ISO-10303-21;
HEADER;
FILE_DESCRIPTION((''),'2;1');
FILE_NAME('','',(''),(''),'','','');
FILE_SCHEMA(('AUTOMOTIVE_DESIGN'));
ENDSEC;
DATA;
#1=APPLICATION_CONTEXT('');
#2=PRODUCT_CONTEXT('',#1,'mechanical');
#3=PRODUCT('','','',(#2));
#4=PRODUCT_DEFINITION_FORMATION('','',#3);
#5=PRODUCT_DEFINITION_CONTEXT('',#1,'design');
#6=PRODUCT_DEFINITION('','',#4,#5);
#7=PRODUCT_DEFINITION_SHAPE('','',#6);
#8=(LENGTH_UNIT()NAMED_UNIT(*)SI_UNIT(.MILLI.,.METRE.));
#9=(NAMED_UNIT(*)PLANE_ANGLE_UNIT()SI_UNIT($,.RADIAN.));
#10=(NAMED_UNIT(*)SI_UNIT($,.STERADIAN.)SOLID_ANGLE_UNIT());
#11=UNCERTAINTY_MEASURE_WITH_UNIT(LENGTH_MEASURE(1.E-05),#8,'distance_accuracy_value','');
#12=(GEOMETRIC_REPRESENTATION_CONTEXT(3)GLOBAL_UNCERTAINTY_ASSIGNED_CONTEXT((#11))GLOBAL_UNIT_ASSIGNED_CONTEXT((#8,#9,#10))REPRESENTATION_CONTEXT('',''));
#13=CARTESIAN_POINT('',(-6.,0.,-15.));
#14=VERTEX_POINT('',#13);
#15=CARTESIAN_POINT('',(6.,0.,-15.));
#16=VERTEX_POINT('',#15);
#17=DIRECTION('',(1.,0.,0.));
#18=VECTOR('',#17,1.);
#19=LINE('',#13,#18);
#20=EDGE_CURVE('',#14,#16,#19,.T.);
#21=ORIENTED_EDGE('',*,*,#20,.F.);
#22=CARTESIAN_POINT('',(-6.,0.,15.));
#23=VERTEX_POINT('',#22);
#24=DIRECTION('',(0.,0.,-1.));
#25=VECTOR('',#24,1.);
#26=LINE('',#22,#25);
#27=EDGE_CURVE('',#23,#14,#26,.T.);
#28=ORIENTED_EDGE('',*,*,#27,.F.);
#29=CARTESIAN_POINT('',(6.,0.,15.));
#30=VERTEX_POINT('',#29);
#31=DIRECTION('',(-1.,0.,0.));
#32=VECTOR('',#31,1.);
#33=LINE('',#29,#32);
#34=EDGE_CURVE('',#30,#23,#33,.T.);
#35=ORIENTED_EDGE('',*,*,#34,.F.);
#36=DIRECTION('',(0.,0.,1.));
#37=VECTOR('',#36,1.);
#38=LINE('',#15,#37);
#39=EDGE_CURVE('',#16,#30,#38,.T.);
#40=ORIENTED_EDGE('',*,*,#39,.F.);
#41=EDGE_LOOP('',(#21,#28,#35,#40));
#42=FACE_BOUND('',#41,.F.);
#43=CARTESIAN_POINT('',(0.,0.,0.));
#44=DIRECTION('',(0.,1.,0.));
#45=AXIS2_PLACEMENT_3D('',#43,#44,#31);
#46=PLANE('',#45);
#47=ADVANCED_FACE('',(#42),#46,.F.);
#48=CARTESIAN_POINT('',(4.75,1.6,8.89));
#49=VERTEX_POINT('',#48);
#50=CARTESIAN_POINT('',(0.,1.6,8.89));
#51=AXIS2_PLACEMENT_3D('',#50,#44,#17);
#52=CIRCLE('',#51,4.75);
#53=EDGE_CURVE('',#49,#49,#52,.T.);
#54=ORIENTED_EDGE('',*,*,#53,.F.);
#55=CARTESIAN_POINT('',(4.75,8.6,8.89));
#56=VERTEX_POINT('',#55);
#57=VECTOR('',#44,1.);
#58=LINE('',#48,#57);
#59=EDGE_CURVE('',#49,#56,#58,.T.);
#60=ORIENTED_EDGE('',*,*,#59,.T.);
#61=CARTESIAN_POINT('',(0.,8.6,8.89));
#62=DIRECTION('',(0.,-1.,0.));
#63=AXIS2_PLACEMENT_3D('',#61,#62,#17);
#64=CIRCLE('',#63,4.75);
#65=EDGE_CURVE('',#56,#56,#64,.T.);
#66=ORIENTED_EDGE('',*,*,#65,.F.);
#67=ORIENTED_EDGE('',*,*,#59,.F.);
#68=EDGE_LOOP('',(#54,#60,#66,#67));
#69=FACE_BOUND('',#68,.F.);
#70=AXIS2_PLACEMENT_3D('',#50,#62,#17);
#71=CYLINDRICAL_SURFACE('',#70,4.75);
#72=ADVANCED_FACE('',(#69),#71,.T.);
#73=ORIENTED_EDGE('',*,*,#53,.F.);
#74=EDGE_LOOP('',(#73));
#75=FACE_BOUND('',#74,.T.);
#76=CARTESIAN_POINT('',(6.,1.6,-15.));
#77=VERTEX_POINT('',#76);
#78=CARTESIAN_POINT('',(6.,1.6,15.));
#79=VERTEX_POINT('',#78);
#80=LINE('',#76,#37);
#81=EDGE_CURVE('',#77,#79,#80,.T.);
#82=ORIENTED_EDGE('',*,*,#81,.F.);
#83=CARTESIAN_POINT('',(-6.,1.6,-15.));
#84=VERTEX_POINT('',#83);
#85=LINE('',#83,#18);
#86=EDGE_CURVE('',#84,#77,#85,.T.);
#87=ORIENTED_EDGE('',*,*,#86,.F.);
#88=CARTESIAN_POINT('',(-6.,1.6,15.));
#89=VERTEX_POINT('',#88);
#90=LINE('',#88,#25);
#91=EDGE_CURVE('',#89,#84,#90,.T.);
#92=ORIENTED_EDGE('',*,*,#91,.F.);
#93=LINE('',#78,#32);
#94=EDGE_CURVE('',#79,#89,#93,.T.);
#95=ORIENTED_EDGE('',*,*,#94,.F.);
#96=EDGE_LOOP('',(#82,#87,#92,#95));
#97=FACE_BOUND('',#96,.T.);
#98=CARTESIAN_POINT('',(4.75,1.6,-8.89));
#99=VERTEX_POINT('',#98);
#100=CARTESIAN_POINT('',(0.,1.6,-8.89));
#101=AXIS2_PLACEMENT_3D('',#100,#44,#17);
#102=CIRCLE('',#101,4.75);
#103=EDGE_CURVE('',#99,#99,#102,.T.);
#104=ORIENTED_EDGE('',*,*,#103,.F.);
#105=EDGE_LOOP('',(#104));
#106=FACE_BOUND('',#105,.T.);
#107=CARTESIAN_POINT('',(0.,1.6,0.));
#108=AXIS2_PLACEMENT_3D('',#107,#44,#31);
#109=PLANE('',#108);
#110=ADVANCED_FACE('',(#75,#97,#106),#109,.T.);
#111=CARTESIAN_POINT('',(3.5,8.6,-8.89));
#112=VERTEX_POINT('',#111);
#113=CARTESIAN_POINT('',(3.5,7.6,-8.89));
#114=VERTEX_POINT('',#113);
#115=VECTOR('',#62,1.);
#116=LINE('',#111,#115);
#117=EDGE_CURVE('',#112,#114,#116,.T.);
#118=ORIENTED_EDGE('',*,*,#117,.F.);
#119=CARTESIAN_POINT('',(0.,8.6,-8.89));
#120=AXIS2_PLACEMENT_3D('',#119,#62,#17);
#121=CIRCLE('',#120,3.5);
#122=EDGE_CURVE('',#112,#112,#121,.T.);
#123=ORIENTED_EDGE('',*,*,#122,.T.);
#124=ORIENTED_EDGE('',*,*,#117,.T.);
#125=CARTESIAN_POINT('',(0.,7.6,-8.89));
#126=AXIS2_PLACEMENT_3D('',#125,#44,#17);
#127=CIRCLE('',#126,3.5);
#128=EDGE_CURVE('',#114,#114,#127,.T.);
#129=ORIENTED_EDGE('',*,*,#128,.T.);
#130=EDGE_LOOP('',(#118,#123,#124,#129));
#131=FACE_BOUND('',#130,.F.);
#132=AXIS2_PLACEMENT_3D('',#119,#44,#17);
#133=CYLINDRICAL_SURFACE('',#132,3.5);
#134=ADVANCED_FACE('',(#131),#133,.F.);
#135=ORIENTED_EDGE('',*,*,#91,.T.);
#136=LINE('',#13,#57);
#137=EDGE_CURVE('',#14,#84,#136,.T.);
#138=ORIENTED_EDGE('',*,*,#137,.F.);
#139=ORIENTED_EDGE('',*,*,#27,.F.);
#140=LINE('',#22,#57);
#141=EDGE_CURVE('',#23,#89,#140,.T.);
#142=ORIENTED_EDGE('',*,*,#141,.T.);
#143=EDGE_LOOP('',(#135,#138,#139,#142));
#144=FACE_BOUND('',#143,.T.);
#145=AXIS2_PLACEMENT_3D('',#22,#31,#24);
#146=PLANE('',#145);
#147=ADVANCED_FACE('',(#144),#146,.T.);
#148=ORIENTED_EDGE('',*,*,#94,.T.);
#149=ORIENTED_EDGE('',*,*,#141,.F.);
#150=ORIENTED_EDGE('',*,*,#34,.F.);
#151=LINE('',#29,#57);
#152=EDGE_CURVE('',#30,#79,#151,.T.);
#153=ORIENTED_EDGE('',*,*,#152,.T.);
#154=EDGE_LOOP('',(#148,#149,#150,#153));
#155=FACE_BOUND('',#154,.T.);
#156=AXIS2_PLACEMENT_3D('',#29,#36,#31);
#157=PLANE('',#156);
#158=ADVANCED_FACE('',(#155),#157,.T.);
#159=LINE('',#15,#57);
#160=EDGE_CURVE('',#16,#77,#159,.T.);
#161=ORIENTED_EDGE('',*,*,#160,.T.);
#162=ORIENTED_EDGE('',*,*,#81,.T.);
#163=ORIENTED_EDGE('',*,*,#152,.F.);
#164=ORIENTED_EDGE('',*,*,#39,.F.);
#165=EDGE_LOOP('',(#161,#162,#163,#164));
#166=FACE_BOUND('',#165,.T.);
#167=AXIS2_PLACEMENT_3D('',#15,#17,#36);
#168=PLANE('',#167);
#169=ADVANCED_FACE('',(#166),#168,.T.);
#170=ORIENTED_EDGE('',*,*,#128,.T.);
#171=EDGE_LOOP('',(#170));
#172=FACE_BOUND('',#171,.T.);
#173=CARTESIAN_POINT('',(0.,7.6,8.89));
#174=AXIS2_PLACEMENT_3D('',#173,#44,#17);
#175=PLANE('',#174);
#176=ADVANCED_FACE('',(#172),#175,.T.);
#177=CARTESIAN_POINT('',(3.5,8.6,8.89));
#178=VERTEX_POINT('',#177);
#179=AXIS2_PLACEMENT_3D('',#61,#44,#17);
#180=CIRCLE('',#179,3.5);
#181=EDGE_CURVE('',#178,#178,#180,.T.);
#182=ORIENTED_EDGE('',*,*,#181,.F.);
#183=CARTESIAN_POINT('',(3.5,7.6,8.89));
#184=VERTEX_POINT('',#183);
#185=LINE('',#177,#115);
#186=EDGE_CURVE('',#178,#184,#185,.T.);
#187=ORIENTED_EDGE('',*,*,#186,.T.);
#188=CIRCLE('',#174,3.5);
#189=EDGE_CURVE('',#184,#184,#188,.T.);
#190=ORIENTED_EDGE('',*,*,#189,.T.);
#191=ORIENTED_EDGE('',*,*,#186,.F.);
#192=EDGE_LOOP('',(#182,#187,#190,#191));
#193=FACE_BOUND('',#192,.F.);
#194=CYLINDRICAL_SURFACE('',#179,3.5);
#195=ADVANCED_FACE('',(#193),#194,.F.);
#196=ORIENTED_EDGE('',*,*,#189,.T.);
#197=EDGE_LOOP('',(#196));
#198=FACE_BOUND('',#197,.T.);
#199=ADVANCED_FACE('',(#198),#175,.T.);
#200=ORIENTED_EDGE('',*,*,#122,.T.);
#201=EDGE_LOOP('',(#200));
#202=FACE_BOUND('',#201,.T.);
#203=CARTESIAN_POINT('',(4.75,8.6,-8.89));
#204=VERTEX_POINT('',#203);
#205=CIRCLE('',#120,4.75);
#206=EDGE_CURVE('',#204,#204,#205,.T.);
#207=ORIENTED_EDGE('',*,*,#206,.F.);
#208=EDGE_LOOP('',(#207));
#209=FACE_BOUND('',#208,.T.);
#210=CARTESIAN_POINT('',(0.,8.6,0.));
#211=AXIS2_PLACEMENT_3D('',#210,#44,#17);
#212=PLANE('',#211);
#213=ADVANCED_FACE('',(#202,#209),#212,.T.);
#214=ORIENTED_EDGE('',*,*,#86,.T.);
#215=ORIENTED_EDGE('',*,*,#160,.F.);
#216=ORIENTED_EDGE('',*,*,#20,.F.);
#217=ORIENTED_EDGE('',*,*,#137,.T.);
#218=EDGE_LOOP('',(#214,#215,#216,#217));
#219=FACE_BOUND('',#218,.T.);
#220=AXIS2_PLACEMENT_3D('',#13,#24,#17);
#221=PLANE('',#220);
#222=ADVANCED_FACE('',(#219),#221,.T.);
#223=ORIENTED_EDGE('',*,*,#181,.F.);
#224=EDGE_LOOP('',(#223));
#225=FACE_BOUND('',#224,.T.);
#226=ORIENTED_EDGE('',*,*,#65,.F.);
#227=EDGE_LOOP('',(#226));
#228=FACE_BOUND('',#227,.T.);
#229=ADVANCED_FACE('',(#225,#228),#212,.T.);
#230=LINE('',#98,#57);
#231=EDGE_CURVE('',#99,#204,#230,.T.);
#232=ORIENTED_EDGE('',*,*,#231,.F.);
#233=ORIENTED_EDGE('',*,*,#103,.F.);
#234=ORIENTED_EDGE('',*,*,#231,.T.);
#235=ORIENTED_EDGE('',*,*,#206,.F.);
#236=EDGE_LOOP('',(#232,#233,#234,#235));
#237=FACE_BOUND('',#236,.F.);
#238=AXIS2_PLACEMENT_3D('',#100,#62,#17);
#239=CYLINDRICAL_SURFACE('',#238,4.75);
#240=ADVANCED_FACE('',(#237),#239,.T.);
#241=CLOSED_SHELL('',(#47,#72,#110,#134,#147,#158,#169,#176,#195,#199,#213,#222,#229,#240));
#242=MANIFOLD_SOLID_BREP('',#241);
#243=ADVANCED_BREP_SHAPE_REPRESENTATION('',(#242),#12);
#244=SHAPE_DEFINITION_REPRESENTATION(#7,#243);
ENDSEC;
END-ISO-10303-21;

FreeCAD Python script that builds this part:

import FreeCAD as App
import Part
import Sketcher

V = App.Vector


def add_polygon(sketch, points):
    """Adds a closed chain of lines whose ends are joined by coincident constraints."""
    first, n = sketch.GeometryCount, len(points)
    for a, b in zip(points, points[1:] + points[:1]):
        sketch.addGeometry(Part.LineSegment(App.Vector(*a, 0), App.Vector(*b, 0)), False)
    for i in range(n):
        sketch.addConstraint(Sketcher.Constraint("Coincident", first + i, 2, first + (i + 1) % n, 1))

doc = App.newDocument("Part")
body = doc.addObject("PartDesign::Body", "Body")

sketch1 = body.newObject("Sketcher::SketchObject", "Sketch")
sketch1.AttachmentSupport = (doc.getObject("XZ_Plane"), [""])
sketch1.MapMode = "FlatFace"
add_polygon(sketch1, [(6, 15), (6, -15), (-6, -15), (-6, 15)])
sketch1.addConstraint([
    Sketcher.Constraint("Vertical", 0),
    Sketcher.Constraint("Horizontal", 1),
    Sketcher.Constraint("Vertical", 2),
    Sketcher.Constraint("Horizontal", 3),
    Sketcher.Constraint("Symmetric", 0, 2, 2, 2, -1, 1),
    Sketcher.Constraint("DistanceX", 1, 2, 1, 1, 12.0),
    Sketcher.Constraint("DistanceY", 0, 2, 0, 1, 30.0),
])
pad1 = body.newObject("PartDesign::Pad", "Pad")
pad1.Profile = sketch1
pad1.Length = 1.6
pad1.Reversed = True

sketch2 = body.newObject("Sketcher::SketchObject", "Sketch001")
sketch2.AttachmentSupport = (doc.getObject("XZ_Plane"), [""])
sketch2.MapMode = "FlatFace"
sketch2.AttachmentOffset = App.Placement(V(0, 0, -1.6), App.Rotation())
sketch2.addGeometry([
    Part.Circle(V(0, 8.9, 0), V(0, 0, 1), 4.8),
    Part.Circle(V(0, -8.9, 0), V(0, 0, 1), 4.8),
], False)
sketch2.addConstraint([
    Sketcher.Constraint("Equal", 0, 1),
    Sketcher.Constraint("Symmetric", 0, 3, 1, 3, -1, 1),
    Sketcher.Constraint("PointOnObject", 0, 3, -2),
    Sketcher.Constraint("Diameter", 0, 9.5),
    Sketcher.Constraint("DistanceY", -1, 1, 0, 3, 8.89),
])
pad2 = body.newObject("PartDesign::Pad", "Pad001")
pad2.Profile = sketch2
pad2.Length = 7
pad2.Reversed = True

sketch3 = body.newObject("Sketcher::SketchObject", "Sketch002")
sketch3.AttachmentSupport = (doc.getObject("XZ_Plane"), [""])
sketch3.MapMode = "FlatFace"
sketch3.AttachmentOffset = App.Placement(V(0, 0, -8.6), App.Rotation())
sketch3.addGeometry([
    Part.Circle(V(0, 8.9, 0), V(0, 0, 1), 3.5),
    Part.Circle(V(0, -8.9, 0), V(0, 0, 1), 3.5),
], False)
sketch3.addConstraint([
    Sketcher.Constraint("Equal", 0, 1),
    Sketcher.Constraint("Symmetric", 0, 3, 1, 3, -1, 1),
    Sketcher.Constraint("PointOnObject", 0, 3, -2),
    Sketcher.Constraint("Diameter", 0, 7.0),
    Sketcher.Constraint("DistanceY", -1, 1, 0, 3, 8.89),
])
pocket1 = body.newObject("PartDesign::Pocket", "Pocket")
pocket1.Profile = sketch3
pocket1.Length = 1
pocket1.Reversed = True

doc.recompute()
